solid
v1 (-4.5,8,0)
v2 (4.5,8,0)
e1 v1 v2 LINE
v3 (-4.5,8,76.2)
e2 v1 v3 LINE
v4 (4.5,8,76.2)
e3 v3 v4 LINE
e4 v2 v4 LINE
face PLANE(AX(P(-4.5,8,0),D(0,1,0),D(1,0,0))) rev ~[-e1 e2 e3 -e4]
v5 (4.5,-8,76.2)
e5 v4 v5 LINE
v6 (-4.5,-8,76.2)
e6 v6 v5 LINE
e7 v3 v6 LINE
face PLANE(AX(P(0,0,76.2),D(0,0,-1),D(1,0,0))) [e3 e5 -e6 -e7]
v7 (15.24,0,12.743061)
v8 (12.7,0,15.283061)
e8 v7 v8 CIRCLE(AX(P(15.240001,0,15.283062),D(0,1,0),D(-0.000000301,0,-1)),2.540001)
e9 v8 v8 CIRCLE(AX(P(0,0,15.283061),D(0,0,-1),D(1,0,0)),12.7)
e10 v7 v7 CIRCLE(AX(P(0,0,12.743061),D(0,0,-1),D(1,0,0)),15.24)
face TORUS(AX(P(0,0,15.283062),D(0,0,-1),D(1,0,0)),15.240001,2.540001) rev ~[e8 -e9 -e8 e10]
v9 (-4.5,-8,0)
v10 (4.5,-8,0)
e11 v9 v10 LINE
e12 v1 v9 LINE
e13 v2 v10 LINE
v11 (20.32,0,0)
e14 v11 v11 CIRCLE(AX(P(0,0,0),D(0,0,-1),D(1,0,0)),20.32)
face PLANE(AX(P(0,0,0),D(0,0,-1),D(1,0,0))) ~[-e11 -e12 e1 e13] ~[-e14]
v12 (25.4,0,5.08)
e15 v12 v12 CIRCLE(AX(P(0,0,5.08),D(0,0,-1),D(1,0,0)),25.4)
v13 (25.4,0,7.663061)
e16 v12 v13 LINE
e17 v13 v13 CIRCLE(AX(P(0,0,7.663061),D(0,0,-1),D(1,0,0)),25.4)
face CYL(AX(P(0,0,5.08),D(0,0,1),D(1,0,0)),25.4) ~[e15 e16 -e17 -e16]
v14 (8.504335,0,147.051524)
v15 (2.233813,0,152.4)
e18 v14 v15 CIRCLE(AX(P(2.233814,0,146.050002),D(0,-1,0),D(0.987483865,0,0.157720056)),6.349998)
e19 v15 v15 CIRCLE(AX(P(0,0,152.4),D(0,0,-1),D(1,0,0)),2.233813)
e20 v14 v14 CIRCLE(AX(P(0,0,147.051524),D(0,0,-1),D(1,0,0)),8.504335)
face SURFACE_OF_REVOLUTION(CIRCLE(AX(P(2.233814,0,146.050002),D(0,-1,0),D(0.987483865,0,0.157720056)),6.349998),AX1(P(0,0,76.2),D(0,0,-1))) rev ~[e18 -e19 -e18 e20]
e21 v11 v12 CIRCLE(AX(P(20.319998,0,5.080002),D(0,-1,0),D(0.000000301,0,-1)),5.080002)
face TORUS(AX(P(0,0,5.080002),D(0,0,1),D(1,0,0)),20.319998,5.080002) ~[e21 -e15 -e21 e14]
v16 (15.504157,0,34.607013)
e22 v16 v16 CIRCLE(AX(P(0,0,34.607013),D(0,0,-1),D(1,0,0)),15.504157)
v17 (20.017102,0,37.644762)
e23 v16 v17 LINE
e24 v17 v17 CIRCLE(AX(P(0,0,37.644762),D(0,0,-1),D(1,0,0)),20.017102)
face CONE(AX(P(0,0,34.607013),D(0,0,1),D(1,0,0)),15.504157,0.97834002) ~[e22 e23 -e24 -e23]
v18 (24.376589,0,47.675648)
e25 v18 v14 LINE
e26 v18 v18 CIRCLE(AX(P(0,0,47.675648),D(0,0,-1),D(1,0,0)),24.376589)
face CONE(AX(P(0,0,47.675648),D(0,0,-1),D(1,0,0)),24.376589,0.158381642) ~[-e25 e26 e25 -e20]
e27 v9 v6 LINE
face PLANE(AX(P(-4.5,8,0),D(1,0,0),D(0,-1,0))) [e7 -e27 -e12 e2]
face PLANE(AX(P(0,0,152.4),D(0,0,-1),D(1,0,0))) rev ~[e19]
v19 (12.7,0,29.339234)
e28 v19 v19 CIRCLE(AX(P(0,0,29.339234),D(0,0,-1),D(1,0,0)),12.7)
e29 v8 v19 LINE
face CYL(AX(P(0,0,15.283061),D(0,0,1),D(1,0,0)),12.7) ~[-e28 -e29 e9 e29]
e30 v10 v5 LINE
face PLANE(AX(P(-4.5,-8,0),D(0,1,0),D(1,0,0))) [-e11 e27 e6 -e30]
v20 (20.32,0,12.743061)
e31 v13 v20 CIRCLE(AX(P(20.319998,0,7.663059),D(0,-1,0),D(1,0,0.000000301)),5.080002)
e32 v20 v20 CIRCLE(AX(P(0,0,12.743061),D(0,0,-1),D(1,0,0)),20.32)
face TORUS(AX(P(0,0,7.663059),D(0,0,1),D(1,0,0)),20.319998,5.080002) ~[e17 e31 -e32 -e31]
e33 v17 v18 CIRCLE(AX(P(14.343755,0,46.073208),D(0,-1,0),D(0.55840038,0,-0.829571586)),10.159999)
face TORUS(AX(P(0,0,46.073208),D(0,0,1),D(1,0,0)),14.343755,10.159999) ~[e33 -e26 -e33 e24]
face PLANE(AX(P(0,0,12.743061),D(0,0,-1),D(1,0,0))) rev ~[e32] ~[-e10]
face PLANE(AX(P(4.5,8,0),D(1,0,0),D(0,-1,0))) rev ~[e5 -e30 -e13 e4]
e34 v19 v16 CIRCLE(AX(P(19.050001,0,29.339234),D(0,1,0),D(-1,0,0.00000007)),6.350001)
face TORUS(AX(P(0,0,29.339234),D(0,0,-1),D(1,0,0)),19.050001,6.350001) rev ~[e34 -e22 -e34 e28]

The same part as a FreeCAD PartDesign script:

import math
import FreeCAD as App
import Part
import Sketcher
Q = App.Units.Quantity


def add_polygon(sketch, points):
    """Adds a closed chain of lines whose ends are joined by coincident constraints."""
    first, n = sketch.GeometryCount, len(points)
    for a, b in zip(points, points[1:] + points[:1]):
        sketch.addGeometry(Part.LineSegment(App.Vector(*a, 0), App.Vector(*b, 0)), False)
    for i in range(n):
        sketch.addConstraint(Sketcher.Constraint("Coincident", first + i, 2, first + (i + 1) % n, 1))

doc = App.newDocument("Part")
body = doc.addObject("PartDesign::Body", "Body")

sketch1 = body.newObject("Sketcher::SketchObject", "Sketch")
sketch1.AttachmentSupport = (doc.getObject("XZ_Plane"), [""])
sketch1.MapMode = "FlatFace"
sketch1.addGeometry([
    Part.LineSegment(App.Vector(2.233813, 152.4, 0), App.Vector(0, 152.4, 0)),
    Part.LineSegment(App.Vector(0, 152.4, 0), App.Vector(0, 0, 0)),
    Part.LineSegment(App.Vector(0, 0, 0), App.Vector(20.32, 0, 0)),
    Part.ArcOfCircle(Part.Circle(App.Vector(20.319998, 5.080002, 0), App.Vector(0, 0, 1), 5.080002), math.radians(-89.999983), math.radians(-0.000017)),
    Part.LineSegment(App.Vector(25.4, 5.08, 0), App.Vector(25.4, 7.663061, 0)),
    Part.ArcOfCircle(Part.Circle(App.Vector(20.319998, 7.663059, 0), App.Vector(0, 0, 1), 5.080002), math.radians(0.000017), math.radians(89.999983)),
    Part.LineSegment(App.Vector(20.32, 12.743061, 0), App.Vector(15.24, 12.743061, 0)),
    Part.ArcOfCircle(Part.Circle(App.Vector(15.240001, 15.283062, 0), App.Vector(0, 0, 1), 2.540001), math.radians(-179.999983), math.radians(-90.000017)),
    Part.LineSegment(App.Vector(12.7, 15.283061, 0), App.Vector(12.7, 29.339234, 0)),
    Part.ArcOfCircle(Part.Circle(App.Vector(19.050001, 29.339234, 0), App.Vector(0, 0, 1), 6.350001), math.radians(123.945254), math.radians(179.999996)),
    Part.LineSegment(App.Vector(15.504157, 34.607013, 0), App.Vector(20.017102, 37.644762, 0)),
    Part.ArcOfCircle(Part.Circle(App.Vector(14.343755, 46.073208, 0), App.Vector(0, 0, 1), 10.159999), math.radians(-56.054755), math.radians(9.074609)),
    Part.LineSegment(App.Vector(24.376589, 47.675648, 0), App.Vector(8.504335, 147.051524, 0)),
    Part.ArcOfCircle(Part.Circle(App.Vector(2.233814, 146.050002, 0), App.Vector(0, 0, 1), 6.349998), math.radians(9.074585), math.radians(90.000012)),
], False)
sketch1.addConstraint([
    Sketcher.Constraint("Coincident", 0, 2, 1, 1),
    Sketcher.Constraint("Coincident", 1, 2, 2, 1),
    Sketcher.Constraint("Tangent", 2, 2, 3, 1),
    Sketcher.Constraint("Tangent", 3, 2, 4, 1),
    Sketcher.Constraint("Tangent", 4, 2, 5, 1),
    Sketcher.Constraint("Tangent", 5, 2, 6, 1),
    Sketcher.Constraint("Tangent", 6, 2, 7, 2),
    Sketcher.Constraint("Tangent", 7, 1, 8, 1),
    Sketcher.Constraint("Tangent", 8, 2, 9, 2),
    Sketcher.Constraint("Tangent", 9, 1, 10, 1),
    Sketcher.Constraint("Tangent", 10, 2, 11, 1),
    Sketcher.Constraint("Tangent", 11, 2, 12, 1),
    Sketcher.Constraint("Tangent", 12, 2, 13, 1),
    Sketcher.Constraint("Tangent", 13, 2, 0, 1),
    Sketcher.Constraint("Horizontal", 0),
    Sketcher.Constraint("Vertical", 1),
    Sketcher.Constraint("Horizontal", 2),
    Sketcher.Constraint("Vertical", 4),
    Sketcher.Constraint("Horizontal", 6),
    Sketcher.Constraint("Vertical", 8),
    Sketcher.Constraint("Coincident", 1, 2, -1, 1),
    Sketcher.Constraint("Equal", 3, 5),
    Sketcher.Constraint("Radius", 3, Q("0.2000001 in")),
    Sketcher.Constraint("Radius", 7, Q("0.1 in")),
    Sketcher.Constraint("Radius", 11, Q("0.4 in")),
    Sketcher.Constraint("DistanceY", 1, 2, 1, 1, Q("6 in")),
    Sketcher.Constraint("Radius", 9, Q("0.25 in")),
    Sketcher.Constraint("Radius", 13, Q("0.2499999 in")),
    Sketcher.Constraint("DistanceX", 2, 1, 2, 2, Q("0.8 in")),
    Sketcher.Constraint("DistanceX", 6, 2, 6, 1, Q("0.2 in")),
    Sketcher.Constraint("DistanceX", -1, 1, 9, 1, Q("0.6103999 in")),
    Sketcher.Constraint("DistanceY", 4, 1, 4, 2, Q("2.583061 mm")),
    Sketcher.Constraint("DistanceX", 9, 3, 10, 2, Q("0.967101 mm")),
    Sketcher.Constraint("DistanceY", 7, 3, 10, 2, Q("22.3617 mm")),
    Sketcher.Constraint("DistanceX", 0, 2, 0, 1, Q("2.233813 mm")),
])
revolution = body.newObject("PartDesign::Revolution", "Revolution")
revolution.Profile = sketch1
revolution.ReferenceAxis = (sketch1, ["V_Axis"])
revolution.Angle = 360

sketch2 = body.newObject("Sketcher::SketchObject", "Sketch001")
sketch2.AttachmentSupport = (doc.getObject("XY_Plane"), [""])
sketch2.MapMode = "FlatFace"
add_polygon(sketch2, [(-4.5, -8), (-4.5, 8), (4.5, 8), (4.5, -8)])
sketch2.addConstraint([
    Sketcher.Constraint("Vertical", 0),
    Sketcher.Constraint("Horizontal", 1),
    Sketcher.Constraint("Vertical", 2),
    Sketcher.Constraint("Horizontal", 3),
    Sketcher.Constraint("Symmetric", 0, 2, 2, 2, -1, 1),
    Sketcher.Constraint("DistanceX", 1, 1, 1, 2, Q("9 mm")),
    Sketcher.Constraint("DistanceY", 0, 1, 0, 2, Q("16 mm")),
])
pocket1 = body.newObject("PartDesign::Pocket", "Pocket")
pocket1.Profile = sketch2
pocket1.Length = Q("3 in")
pocket1.Reversed = True

doc.recompute()
